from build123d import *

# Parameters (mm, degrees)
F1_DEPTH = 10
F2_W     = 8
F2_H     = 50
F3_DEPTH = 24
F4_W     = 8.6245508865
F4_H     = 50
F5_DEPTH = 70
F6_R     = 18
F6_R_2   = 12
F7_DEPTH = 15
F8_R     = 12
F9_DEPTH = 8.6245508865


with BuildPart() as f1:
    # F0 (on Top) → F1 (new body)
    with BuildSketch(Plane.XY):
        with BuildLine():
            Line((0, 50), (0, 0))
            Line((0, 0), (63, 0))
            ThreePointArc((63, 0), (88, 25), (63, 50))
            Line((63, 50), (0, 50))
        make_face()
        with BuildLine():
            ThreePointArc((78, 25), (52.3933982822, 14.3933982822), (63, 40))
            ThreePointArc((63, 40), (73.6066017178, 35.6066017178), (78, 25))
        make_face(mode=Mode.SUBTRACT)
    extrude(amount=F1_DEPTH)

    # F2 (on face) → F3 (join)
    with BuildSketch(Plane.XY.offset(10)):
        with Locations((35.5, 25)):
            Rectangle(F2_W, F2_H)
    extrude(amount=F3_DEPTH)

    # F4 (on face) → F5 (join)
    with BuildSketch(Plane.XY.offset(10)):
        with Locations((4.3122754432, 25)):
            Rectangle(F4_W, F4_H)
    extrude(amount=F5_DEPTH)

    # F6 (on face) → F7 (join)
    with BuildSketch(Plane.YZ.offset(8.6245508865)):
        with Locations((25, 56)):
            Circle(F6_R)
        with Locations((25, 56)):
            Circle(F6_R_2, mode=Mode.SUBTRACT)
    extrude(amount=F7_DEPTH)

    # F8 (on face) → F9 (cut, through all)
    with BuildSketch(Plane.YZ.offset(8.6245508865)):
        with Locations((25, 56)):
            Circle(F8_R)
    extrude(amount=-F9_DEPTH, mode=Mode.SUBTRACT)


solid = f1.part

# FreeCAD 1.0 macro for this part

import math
import FreeCAD as App
import Part
import Sketcher
Q = App.Units.Quantity


def add_polygon(sketch, points):
    """Adds a closed chain of lines whose ends are joined by coincident constraints."""
    first, n = sketch.GeometryCount, len(points)
    for a, b in zip(points, points[1:] + points[:1]):
        sketch.addGeometry(Part.LineSegment(App.Vector(*a, 0), App.Vector(*b, 0)), False)
    for i in range(n):
        sketch.addConstraint(Sketcher.Constraint("Coincident", first + i, 2, first + (i + 1) % n, 1))

doc = App.newDocument("Part")
params = doc.addObject("Spreadsheet::Sheet", "Params")
for row, (alias, value) in enumerate([
    ("sketch1_diameter", "30 mm"),
    ("sketch1_radius", "25 mm"),
    ("sketch1_width", "63 mm"),
    ("pad1_length", "10 mm"),
    ("sketch2_width", "8 mm"),
    ("sketch2_height", "50 mm"),
    ("pad2_length", "24 mm"),
    ("sketch3_height", "50 mm"),
    ("pad3_length", "70 mm"),
    ("sketch4_diameter", "36 mm"),
    ("sketch4_diameter2", "24 mm"),
    ("pad4_length", "15 mm"),
    ("sketch5_diameter", "24 mm"),
], start=1):
    params.set(f"A{row}", alias)
    params.set(f"B{row}", "=" + value)
    params.setAlias(f"B{row}", alias)

body = doc.addObject("PartDesign::Body", "Body")

sketch1 = doc.addObject("Sketcher::SketchObject", "Sketch")
body.addObject(sketch1)
sketch1.AttachmentSupport = (doc.XY_Plane, [""])
sketch1.MapMode = "FlatFace"
sketch1.addGeometry(Part.LineSegment(App.Vector(0, 50, 0), App.Vector(0, 0, 0)), False)
sketch1.addGeometry(Part.LineSegment(App.Vector(0, 0, 0), App.Vector(63, 0, 0)), False)
sketch1.addGeometry(Part.ArcOfCircle(Part.Circle(App.Vector(63, 25, 0), App.Vector(0, 0, 1), 25), math.radians(-90), math.radians(90)), False)
sketch1.addGeometry(Part.LineSegment(App.Vector(63, 50, 0), App.Vector(0, 50, 0)), False)
sketch1.addGeometry(Part.Circle(App.Vector(63, 25, 0), App.Vector(0, 0, 1), 15), False)
sketch1.addConstraint(Sketcher.Constraint("Coincident", 0, 2, 1, 1))
sketch1.addConstraint(Sketcher.Constraint("Tangent", 1, 2, 2, 1))
sketch1.addConstraint(Sketcher.Constraint("Tangent", 2, 2, 3, 1))
sketch1.addConstraint(Sketcher.Constraint("Coincident", 3, 2, 0, 1))
sketch1.addConstraint(Sketcher.Constraint("Vertical", 0))
sketch1.addConstraint(Sketcher.Constraint("Horizontal", 1))
sketch1.addConstraint(Sketcher.Constraint("Horizontal", 3))
sketch1.addConstraint(Sketcher.Constraint("Coincident", 0, 2, -1, 1))
sketch1.addConstraint(Sketcher.Constraint("Coincident", 4, 3, 2, 3))
sketch1.addConstraint(Sketcher.Constraint("Diameter", 4, Q("30 mm")))
sketch1.addConstraint(Sketcher.Constraint("Radius", 2, Q("25 mm")))
sketch1.addConstraint(Sketcher.Constraint("DistanceX", 1, 1, 1, 2, Q("63 mm")))
sketch1.setExpression("Constraints[9]", "Params.sketch1_diameter")
sketch1.setExpression("Constraints[10]", "Params.sketch1_radius")
sketch1.setExpression("Constraints[11]", "Params.sketch1_width")
pad1 = doc.addObject("PartDesign::Pad", "Pad")
body.addObject(pad1)
pad1.Profile = sketch1
pad1.setExpression("Length", "Params.pad1_length")

sketch2 = doc.addObject("Sketcher::SketchObject", "Sketch001")
body.addObject(sketch2)
sketch2.AttachmentSupport = (doc.XY_Plane, [""])
sketch2.MapMode = "FlatFace"
sketch2.AttachmentOffset = App.Placement(App.Vector(0, 0, 10), App.Rotation())
add_polygon(sketch2, [(31.5, 50), (31.5, 0), (39.5, 0), (39.5, 50)])
sketch2.addConstraint(Sketcher.Constraint("Vertical", 0))
sketch2.addConstraint(Sketcher.Constraint("Horizontal", 1))
sketch2.addConstraint(Sketcher.Constraint("Vertical", 2))
sketch2.addConstraint(Sketcher.Constraint("Horizontal", 3))
sketch2.addConstraint(Sketcher.Constraint("PointOnObject", 0, 2, -1))
sketch2.addConstraint(Sketcher.Constraint("DistanceX", 1, 1, 1, 2, Q("8 mm")))
sketch2.addConstraint(Sketcher.Constraint("DistanceY", 0, 2, 0, 1, Q("50 mm")))
sketch2.addConstraint(Sketcher.Constraint("DistanceX", -1, 1, 0, 2, Q("31.5 mm")))
sketch2.setExpression("Constraints[9]", "Params.sketch2_width")
sketch2.setExpression("Constraints[10]", "Params.sketch2_height")
pad2 = doc.addObject("PartDesign::Pad", "Pad001")
body.addObject(pad2)
pad2.Profile = sketch2
pad2.setExpression("Length", "Params.pad2_length")

sketch3 = doc.addObject("Sketcher::SketchObject", "Sketch002")
body.addObject(sketch3)
sketch3.AttachmentSupport = (doc.XY_Plane, [""])
sketch3.MapMode = "FlatFace"
sketch3.AttachmentOffset = App.Placement(App.Vector(0, 0, 10), App.Rotation())
add_polygon(sketch3, [(0, 50), (0, 0), (8.624551, 0), (8.624551, 50)])
sketch3.addConstraint(Sketcher.Constraint("Vertical", 0))
sketch3.addConstraint(Sketcher.Constraint("Horizontal", 1))
sketch3.addConstraint(Sketcher.Constraint("Vertical", 2))
sketch3.addConstraint(Sketcher.Constraint("Horizontal", 3))
sketch3.addConstraint(Sketcher.Constraint("Coincident", 0, 2, -1, 1))
sketch3.addConstraint(Sketcher.Constraint("DistanceY", 0, 2, 0, 1, Q("50 mm")))
sketch3.addConstraint(Sketcher.Constraint("DistanceX", 1, 1, 1, 2, Q("8.624551 mm")))
sketch3.setExpression("Constraints[9]", "Params.sketch3_height")
pad3 = doc.addObject("PartDesign::Pad", "Pad002")
body.addObject(pad3)
pad3.Profile = sketch3
pad3.setExpression("Length", "Params.pad3_length")

sketch4 = doc.addObject("Sketcher::SketchObject", "Sketch003")
body.addObject(sketch4)
sketch4.AttachmentSupport = (doc.YZ_Plane, [""])
sketch4.MapMode = "FlatFace"
sketch4.AttachmentOffset = App.Placement(App.Vector(0, 0, 8.624551), App.Rotation())
sketch4.addGeometry(Part.Circle(App.Vector(25, 56, 0), App.Vector(0, 0, 1), 18), False)
sketch4.addGeometry(Part.Circle(App.Vector(25, 56, 0), App.Vector(0, 0, 1), 12), False)
sketch4.addConstraint(Sketcher.Constraint("Coincident", 1, 3, 0, 3))
sketch4.addConstraint(Sketcher.Constraint("Diameter", 0, Q("36 mm")))
sketch4.addConstraint(Sketcher.Constraint("Diameter", 1, Q("24 mm")))
sketch4.addConstraint(Sketcher.Constraint("DistanceX", -1, 1, 0, 3, Q("25 mm")))
sketch4.addConstraint(Sketcher.Constraint("DistanceY", -1, 1, 0, 3, Q("56 mm")))
sketch4.setExpression("Constraints[1]", "Params.sketch4_diameter")
sketch4.setExpression("Constraints[2]", "Params.sketch4_diameter2")
pad4 = doc.addObject("PartDesign::Pad", "Pad003")
body.addObject(pad4)
pad4.Profile = sketch4
pad4.setExpression("Length", "Params.pad4_length")

sketch5 = doc.addObject("Sketcher::SketchObject", "Sketch004")
body.addObject(sketch5)
sketch5.AttachmentSupport = (doc.YZ_Plane, [""])
sketch5.MapMode = "FlatFace"
sketch5.AttachmentOffset = App.Placement(App.Vector(0, 0, 8.624551), App.Rotation())
sketch5.addGeometry(Part.Circle(App.Vector(25, 56, 0), App.Vector(0, 0, 1), 12), False)
sketch5.addConstraint(Sketcher.Constraint("Diameter", 0, Q("24 mm")))
sketch5.addConstraint(Sketcher.Constraint("DistanceX", -1, 1, 0, 3, Q("25 mm")))
sketch5.addConstraint(Sketcher.Constraint("DistanceY", -1, 1, 0, 3, Q("56 mm")))
sketch5.setExpression("Constraints[0]", "Params.sketch5_diameter")
pocket1 = doc.addObject("PartDesign::Pocket", "Pocket")
body.addObject(pocket1)
pocket1.Profile = sketch5
pocket1.Type = "ThroughAll"

doc.recompute()
